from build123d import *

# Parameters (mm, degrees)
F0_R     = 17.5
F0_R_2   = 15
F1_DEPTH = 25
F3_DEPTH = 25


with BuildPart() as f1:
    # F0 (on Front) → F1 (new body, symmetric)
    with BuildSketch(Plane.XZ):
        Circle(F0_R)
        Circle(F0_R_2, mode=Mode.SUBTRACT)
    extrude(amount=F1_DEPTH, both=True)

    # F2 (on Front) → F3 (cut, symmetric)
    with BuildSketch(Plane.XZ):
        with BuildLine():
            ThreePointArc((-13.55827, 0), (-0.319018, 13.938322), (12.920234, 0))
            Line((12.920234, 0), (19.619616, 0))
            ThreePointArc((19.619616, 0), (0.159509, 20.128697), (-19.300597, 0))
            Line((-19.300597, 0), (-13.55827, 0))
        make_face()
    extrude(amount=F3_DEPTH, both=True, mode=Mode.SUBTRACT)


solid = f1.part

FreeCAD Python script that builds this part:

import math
import FreeCAD as App
import Part
import Sketcher

doc = App.newDocument("Part")
params = doc.addObject("Spreadsheet::Sheet", "Params")
for row, (alias, value) in enumerate([
    ("sketch1_diameter", "35 mm"),
    ("sketch1_diameter2", "30 mm"),
    ("pad1_length", "50 mm"),
    ("pocket1_length", "50 mm"),
], start=1):
    params.set(f"A{row}", alias)
    params.set(f"B{row}", "=" + value)
    params.setAlias(f"B{row}", alias)

body = doc.addObject("PartDesign::Body", "Body")

# Sketch on XZ plane
sketch1 = body.newObject("Sketcher::SketchObject", "Sketch")
sketch1.AttachmentSupport = (doc.getObject("XZ_Plane"), [""])
sketch1.MapMode = "FlatFace"
sketch1.addGeometry(Part.Circle(App.Vector(0, 0, 0), App.Vector(0, 0, 1), 17.5), False)
sketch1.addGeometry(Part.Circle(App.Vector(0, 0, 0), App.Vector(0, 0, 1), 15), False)
sketch1.addConstraint(Sketcher.Constraint("Coincident", 0, 3, -1, 1))
sketch1.addConstraint(Sketcher.Constraint("Coincident", 1, 3, -1, 1))
sketch1.addConstraint(Sketcher.Constraint("Diameter", 0, 35.0))
sketch1.addConstraint(Sketcher.Constraint("Diameter", 1, 30.0))
sketch1.setExpression("Constraints[2]", "Params.sketch1_diameter")
sketch1.setExpression("Constraints[3]", "Params.sketch1_diameter2")
pad1 = body.newObject("PartDesign::Pad", "Pad")
pad1.Profile = sketch1
pad1.setExpression("Length", "Params.pad1_length")
pad1.Midplane = True

# Sketch on XZ plane
sketch2 = body.newObject("Sketcher::SketchObject", "Sketch001")
sketch2.AttachmentSupport = (doc.getObject("XZ_Plane"), [""])
sketch2.MapMode = "FlatFace"
sketch2.addGeometry(Part.ArcOfCircle(Part.Circle(App.Vector(-0.319018, 0.681539, 0), App.Vector(0, 0, 1), 13.256783), math.radians(-2.94691), math.radians(182.94691)), False)
sketch2.addGeometry(Part.LineSegment(App.Vector(12.920234, 0, 0), App.Vector(19.619616, 0, 0)), False)
sketch2.addGeometry(Part.ArcOfCircle(Part.Circle(App.Vector(0.159509, 0.657487, 0), App.Vector(0, 0, 1), 19.47121), math.radians(-1.935081), math.radians(181.935081)), False)
sketch2.addGeometry(Part.LineSegment(App.Vector(-19.300597, 0, 0), App.Vector(-13.55827, 0, 0)), False)
sketch2.addConstraint(Sketcher.Constraint("Coincident", 0, 1, 1, 1))
sketch2.addConstraint(Sketcher.Constraint("Coincident", 1, 2, 2, 1))
sketch2.addConstraint(Sketcher.Constraint("Coincident", 2, 2, 3, 1))
sketch2.addConstraint(Sketcher.Constraint("Coincident", 3, 2, 0, 2))
sketch2.addConstraint(Sketcher.Constraint("Horizontal", 1))
sketch2.addConstraint(Sketcher.Constraint("Horizontal", 3))
sketch2.addConstraint(Sketcher.Constraint("PointOnObject", 0, 1, -1))
sketch2.addConstraint(Sketcher.Constraint("PointOnObject", 2, 2, -1))
sketch2.addConstraint(Sketcher.Constraint("Radius", 2, 19.47121))
sketch2.addConstraint(Sketcher.Constraint("Radius", 0, 13.256783))
sketch2.addConstraint(Sketcher.Constraint("DistanceX", 1, 1, 1, 2, 6.699382))
sketch2.addConstraint(Sketcher.Constraint("DistanceX", 3, 1, 3, 2, 5.742327))
sketch2.addConstraint(Sketcher.Constraint("DistanceY", -1, 1, 0, 3, 0.681539))
sketch2.addConstraint(Sketcher.Constraint("DistanceX", -1, 1, 2, 3, 0.159509))
pocket1 = body.newObject("PartDesign::Pocket", "Pocket")
pocket1.Profile = sketch2
pocket1.setExpression("Length", "Params.pocket1_length")
pocket1.Midplane = True

doc.recompute()
